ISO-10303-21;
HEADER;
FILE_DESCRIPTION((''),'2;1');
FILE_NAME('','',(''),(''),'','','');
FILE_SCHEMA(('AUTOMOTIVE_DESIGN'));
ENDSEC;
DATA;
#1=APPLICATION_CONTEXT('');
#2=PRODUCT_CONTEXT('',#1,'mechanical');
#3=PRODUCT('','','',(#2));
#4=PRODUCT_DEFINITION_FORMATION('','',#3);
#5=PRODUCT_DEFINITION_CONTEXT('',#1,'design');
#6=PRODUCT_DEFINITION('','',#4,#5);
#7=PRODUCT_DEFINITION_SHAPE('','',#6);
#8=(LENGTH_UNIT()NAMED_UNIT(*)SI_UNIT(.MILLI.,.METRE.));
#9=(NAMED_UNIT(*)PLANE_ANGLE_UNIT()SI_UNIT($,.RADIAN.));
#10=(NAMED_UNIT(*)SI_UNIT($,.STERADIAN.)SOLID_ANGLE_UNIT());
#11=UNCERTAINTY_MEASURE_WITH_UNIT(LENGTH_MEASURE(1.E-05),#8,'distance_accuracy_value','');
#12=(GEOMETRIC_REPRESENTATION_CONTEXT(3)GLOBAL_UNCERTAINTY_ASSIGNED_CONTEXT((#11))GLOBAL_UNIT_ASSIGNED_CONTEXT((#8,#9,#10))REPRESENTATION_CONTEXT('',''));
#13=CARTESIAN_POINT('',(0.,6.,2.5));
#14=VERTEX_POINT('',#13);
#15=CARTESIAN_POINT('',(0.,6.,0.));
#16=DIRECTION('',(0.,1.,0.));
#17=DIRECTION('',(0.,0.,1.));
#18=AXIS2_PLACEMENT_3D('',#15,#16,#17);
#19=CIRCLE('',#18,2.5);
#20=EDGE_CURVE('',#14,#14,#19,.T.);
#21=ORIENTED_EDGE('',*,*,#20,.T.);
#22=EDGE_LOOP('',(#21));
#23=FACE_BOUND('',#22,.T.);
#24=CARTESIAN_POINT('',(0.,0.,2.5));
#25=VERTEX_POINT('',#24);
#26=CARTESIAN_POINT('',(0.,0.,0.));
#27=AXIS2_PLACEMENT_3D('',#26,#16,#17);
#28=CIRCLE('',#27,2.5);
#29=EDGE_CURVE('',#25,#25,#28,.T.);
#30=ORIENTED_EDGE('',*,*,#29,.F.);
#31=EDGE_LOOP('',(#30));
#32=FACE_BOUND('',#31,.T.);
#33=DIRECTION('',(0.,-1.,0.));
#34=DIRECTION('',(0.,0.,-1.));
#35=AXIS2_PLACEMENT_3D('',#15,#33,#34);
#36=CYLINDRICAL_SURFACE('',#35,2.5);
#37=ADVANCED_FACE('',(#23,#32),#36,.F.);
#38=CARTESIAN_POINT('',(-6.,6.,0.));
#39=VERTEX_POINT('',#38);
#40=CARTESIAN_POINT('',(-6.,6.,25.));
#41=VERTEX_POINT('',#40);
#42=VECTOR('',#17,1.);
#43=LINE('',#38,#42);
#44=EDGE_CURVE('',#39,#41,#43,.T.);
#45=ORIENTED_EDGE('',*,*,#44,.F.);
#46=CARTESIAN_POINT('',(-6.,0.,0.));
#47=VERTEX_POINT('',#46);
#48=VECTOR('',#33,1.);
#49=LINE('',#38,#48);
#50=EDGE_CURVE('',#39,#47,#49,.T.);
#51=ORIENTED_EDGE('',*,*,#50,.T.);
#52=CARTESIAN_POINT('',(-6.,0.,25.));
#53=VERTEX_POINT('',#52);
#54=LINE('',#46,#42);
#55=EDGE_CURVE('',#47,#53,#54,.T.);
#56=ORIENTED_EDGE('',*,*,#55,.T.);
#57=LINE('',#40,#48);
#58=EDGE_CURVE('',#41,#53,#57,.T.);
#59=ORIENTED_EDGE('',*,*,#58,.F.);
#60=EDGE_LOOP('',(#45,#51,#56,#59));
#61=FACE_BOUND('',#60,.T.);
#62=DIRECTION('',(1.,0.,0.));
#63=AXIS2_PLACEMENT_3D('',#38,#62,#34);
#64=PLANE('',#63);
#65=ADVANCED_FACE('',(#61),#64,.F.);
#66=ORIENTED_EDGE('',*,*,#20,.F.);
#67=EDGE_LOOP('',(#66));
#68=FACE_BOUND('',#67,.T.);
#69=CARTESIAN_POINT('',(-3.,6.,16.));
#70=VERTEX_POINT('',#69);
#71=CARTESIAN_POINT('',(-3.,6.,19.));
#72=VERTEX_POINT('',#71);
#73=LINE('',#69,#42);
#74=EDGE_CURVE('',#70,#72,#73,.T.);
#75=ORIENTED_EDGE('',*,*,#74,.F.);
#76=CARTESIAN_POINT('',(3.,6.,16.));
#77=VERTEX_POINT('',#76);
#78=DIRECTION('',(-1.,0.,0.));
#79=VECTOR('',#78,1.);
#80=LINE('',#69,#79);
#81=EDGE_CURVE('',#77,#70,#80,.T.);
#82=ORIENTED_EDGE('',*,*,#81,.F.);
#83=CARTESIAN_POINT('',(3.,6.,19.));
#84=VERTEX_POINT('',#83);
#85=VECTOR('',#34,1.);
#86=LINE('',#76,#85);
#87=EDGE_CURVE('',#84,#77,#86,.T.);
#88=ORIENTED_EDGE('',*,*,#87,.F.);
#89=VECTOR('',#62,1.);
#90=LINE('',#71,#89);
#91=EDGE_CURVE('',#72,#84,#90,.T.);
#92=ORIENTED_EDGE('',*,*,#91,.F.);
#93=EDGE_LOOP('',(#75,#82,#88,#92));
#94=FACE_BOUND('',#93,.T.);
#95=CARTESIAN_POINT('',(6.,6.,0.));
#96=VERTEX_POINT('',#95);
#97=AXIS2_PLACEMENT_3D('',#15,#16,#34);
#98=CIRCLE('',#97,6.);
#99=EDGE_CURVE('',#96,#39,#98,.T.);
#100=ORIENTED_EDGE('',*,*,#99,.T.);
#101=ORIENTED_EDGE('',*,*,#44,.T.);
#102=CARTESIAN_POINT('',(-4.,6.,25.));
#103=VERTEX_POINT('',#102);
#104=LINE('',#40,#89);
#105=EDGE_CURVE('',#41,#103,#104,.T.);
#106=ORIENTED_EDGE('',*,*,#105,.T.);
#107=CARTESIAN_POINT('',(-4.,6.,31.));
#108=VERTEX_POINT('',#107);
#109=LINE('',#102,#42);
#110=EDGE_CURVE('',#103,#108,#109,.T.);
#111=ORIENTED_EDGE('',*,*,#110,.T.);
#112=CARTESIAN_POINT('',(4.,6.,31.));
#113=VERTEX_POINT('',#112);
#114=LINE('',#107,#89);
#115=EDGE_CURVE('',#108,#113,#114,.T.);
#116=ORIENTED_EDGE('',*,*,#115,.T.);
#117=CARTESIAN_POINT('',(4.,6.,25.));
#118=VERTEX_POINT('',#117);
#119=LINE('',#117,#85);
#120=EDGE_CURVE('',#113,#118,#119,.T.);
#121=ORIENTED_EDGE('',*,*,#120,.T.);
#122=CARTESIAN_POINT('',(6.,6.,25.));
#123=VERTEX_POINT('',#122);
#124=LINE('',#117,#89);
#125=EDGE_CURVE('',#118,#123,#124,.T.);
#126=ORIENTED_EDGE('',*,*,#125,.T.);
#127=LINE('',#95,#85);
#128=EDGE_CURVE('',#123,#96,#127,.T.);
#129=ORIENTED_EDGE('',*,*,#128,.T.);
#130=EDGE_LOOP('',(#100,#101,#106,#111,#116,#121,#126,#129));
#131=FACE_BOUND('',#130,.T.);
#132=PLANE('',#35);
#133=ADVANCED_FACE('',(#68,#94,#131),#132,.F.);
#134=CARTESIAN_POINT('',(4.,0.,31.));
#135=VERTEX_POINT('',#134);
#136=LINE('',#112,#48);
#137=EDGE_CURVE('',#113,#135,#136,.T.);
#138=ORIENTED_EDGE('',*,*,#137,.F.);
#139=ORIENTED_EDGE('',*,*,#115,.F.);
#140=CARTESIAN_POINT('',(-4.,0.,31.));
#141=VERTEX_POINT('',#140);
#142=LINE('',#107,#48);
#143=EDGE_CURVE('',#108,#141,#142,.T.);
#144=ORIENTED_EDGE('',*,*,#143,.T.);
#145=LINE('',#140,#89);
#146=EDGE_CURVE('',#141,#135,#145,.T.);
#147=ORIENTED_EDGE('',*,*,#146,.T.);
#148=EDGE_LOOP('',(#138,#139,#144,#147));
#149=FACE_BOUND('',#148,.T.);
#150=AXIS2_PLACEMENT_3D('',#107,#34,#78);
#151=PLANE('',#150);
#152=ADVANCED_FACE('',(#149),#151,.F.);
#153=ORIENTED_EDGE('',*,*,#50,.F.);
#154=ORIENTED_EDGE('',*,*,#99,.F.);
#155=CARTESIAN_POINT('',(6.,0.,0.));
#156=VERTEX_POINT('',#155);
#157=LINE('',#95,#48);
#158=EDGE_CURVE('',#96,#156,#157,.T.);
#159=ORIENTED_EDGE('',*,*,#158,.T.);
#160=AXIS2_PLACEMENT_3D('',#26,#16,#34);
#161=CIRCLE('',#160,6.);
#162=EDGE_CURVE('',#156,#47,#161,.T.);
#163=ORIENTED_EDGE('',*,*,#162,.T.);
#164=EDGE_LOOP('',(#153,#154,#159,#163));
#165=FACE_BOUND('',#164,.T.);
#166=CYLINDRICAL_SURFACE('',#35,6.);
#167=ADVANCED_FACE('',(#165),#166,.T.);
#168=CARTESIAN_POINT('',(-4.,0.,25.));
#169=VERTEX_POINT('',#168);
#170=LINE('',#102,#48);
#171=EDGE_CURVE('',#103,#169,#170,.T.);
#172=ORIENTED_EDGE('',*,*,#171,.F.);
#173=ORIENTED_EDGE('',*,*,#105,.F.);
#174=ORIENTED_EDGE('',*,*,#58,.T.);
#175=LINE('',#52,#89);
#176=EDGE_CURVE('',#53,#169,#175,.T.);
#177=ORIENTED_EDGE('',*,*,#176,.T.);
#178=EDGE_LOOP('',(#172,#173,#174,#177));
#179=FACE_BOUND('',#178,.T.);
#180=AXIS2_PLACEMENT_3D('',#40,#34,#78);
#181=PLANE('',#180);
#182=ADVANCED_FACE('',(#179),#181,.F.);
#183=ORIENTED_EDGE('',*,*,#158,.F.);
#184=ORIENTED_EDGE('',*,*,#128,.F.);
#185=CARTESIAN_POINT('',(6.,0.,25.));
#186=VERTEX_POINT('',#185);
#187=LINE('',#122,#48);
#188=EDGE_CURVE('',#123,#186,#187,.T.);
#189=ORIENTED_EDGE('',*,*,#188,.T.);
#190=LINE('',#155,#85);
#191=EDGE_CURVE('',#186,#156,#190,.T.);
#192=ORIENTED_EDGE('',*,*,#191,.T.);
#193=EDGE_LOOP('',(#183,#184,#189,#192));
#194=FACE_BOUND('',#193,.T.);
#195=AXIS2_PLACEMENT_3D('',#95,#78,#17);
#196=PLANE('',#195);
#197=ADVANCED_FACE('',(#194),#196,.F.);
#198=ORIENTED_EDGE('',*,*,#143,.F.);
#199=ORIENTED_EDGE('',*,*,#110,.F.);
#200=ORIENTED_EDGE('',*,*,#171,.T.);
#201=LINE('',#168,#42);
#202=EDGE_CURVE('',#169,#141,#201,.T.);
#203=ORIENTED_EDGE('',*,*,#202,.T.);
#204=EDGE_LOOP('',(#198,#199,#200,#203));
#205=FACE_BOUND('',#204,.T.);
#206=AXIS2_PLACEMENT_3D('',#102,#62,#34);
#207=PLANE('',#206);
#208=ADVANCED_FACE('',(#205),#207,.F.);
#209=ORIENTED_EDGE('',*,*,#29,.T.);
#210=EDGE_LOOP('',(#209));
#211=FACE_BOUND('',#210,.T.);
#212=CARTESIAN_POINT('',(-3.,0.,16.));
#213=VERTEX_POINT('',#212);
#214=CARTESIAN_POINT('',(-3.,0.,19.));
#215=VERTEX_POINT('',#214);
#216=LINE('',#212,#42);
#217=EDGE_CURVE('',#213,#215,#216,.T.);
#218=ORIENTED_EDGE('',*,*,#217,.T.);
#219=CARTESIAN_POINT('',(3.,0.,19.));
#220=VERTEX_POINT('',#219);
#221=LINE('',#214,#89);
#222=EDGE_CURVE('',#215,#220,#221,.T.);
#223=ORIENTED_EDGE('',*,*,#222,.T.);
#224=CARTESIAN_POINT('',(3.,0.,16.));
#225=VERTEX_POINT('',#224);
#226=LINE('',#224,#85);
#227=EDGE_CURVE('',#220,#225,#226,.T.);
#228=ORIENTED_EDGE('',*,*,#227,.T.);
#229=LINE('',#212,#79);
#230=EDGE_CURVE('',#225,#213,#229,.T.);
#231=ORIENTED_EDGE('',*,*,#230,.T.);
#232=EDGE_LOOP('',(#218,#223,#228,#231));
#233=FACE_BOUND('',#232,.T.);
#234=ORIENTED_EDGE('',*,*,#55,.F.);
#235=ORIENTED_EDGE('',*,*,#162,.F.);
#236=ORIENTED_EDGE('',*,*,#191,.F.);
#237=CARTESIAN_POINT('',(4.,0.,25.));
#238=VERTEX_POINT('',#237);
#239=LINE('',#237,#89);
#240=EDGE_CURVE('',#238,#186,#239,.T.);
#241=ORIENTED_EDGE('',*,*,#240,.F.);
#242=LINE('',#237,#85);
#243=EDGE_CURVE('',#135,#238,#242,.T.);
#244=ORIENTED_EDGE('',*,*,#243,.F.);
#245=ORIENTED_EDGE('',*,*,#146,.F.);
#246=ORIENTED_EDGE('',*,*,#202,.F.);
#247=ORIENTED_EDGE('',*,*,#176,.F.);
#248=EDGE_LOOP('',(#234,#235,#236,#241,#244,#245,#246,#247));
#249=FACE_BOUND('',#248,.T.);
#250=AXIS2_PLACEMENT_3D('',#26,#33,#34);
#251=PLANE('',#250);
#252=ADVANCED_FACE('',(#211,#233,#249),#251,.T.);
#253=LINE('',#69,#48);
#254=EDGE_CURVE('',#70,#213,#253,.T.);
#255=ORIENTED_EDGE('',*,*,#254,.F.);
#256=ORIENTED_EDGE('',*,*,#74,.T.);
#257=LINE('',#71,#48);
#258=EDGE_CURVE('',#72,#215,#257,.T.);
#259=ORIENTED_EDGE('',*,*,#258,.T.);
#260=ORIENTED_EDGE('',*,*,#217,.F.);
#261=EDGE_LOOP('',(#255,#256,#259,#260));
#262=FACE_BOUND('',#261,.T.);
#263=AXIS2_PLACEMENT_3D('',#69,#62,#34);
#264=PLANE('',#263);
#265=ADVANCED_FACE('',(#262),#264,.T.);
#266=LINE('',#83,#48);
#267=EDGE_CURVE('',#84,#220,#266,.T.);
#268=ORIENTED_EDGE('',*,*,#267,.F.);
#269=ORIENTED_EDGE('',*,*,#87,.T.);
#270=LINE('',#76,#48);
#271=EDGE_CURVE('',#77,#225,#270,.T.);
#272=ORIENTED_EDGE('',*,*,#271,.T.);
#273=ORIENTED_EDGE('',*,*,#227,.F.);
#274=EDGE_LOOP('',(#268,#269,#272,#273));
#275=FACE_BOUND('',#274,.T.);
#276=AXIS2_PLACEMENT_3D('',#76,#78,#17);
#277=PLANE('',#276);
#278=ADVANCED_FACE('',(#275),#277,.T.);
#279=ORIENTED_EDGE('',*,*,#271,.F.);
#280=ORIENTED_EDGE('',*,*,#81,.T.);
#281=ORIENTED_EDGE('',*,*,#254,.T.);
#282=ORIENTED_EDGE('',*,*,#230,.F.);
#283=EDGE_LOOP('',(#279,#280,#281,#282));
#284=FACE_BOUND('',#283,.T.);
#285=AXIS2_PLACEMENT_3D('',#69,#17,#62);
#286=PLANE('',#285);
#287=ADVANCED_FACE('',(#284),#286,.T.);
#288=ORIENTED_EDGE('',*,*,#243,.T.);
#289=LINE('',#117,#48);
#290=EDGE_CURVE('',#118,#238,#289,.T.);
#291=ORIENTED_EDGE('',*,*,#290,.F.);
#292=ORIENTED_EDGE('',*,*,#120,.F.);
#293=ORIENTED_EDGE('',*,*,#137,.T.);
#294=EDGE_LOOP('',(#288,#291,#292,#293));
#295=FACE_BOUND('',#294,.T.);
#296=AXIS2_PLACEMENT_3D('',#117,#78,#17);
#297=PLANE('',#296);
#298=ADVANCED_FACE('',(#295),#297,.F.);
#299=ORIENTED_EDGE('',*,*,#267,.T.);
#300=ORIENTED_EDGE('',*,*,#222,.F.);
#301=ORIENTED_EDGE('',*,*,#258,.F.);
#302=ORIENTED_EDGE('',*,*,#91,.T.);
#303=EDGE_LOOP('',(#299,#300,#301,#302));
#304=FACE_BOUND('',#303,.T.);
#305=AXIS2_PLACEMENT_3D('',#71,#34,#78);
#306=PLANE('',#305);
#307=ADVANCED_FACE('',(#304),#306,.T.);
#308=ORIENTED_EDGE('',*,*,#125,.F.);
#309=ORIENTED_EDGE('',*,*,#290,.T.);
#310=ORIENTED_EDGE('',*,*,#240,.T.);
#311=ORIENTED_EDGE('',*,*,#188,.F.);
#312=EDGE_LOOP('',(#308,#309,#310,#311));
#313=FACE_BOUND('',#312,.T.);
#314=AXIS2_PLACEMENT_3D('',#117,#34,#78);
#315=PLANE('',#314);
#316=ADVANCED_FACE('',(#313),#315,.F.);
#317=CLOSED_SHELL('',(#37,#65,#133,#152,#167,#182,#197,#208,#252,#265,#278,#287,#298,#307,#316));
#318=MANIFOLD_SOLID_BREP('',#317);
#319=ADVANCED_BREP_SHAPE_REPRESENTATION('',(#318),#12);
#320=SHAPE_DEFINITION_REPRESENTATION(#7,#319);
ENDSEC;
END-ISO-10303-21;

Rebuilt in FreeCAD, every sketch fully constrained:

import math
import FreeCAD as App
import Part
import Sketcher

V = App.Vector

doc = App.newDocument("Part")
body = doc.addObject("PartDesign::Body", "Body")

sketch1 = body.newObject("Sketcher::SketchObject", "Sketch")
sketch1.AttachmentSupport = (doc.getObject("XZ_Plane"), [""])
sketch1.MapMode = "FlatFace"
sketch1.addGeometry(Part.LineSegment(V(-6, 0, 0), V(-6, 25, 0)), False)
sketch1.addGeometry(Part.LineSegment(V(-6, 25, 0), V(-4, 25, 0)), False)
sketch1.addGeometry(Part.LineSegment(V(-4, 25, 0), V(-4, 31, 0)), False)
sketch1.addGeometry(Part.LineSegment(V(-4, 31, 0), V(4, 31, 0)), False)
sketch1.addGeometry(Part.LineSegment(V(4, 31, 0), V(4, 25, 0)), False)
sketch1.addGeometry(Part.LineSegment(V(4, 25, 0), V(6, 25, 0)), False)
sketch1.addGeometry(Part.LineSegment(V(6, 25, 0), V(6, 0, 0)), False)
sketch1.addGeometry(Part.ArcOfCircle(Part.Circle(V(0, 0, 0), V(0, 0, 1), 6), math.radians(180), math.radians(360)), False)
sketch1.addGeometry(Part.LineSegment(V(3, 19, 0), V(-3, 19, 0)), False)
sketch1.addGeometry(Part.LineSegment(V(-3, 19, 0), V(-3, 16, 0)), False)
sketch1.addGeometry(Part.LineSegment(V(-3, 16, 0), V(3, 16, 0)), False)
sketch1.addGeometry(Part.LineSegment(V(3, 16, 0), V(3, 19, 0)), False)
sketch1.addGeometry(Part.Circle(V(0, 0, 0), V(0, 0, 1), 2.5), False)
sketch1.addConstraint(Sketcher.Constraint("Coincident", 0, 2, 1, 1))
sketch1.addConstraint(Sketcher.Constraint("Coincident", 1, 2, 2, 1))
sketch1.addConstraint(Sketcher.Constraint("Coincident", 2, 2, 3, 1))
sketch1.addConstraint(Sketcher.Constraint("Coincident", 3, 2, 4, 1))
sketch1.addConstraint(Sketcher.Constraint("Coincident", 4, 2, 5, 1))
sketch1.addConstraint(Sketcher.Constraint("Coincident", 5, 2, 6, 1))
sketch1.addConstraint(Sketcher.Constraint("Tangent", 6, 2, 7, 2))
sketch1.addConstraint(Sketcher.Constraint("Tangent", 7, 1, 0, 1))
sketch1.addConstraint(Sketcher.Constraint("Coincident", 8, 2, 9, 1))
sketch1.addConstraint(Sketcher.Constraint("Coincident", 9, 2, 10, 1))
sketch1.addConstraint(Sketcher.Constraint("Coincident", 10, 2, 11, 1))
sketch1.addConstraint(Sketcher.Constraint("Coincident", 11, 2, 8, 1))
sketch1.addConstraint(Sketcher.Constraint("Vertical", 0))
sketch1.addConstraint(Sketcher.Constraint("Horizontal", 1))
sketch1.addConstraint(Sketcher.Constraint("Vertical", 2))
sketch1.addConstraint(Sketcher.Constraint("Horizontal", 3))
sketch1.addConstraint(Sketcher.Constraint("Vertical", 4))
sketch1.addConstraint(Sketcher.Constraint("Horizontal", 5))
sketch1.addConstraint(Sketcher.Constraint("Vertical", 6))
sketch1.addConstraint(Sketcher.Constraint("Horizontal", 8))
sketch1.addConstraint(Sketcher.Constraint("Vertical", 9))
sketch1.addConstraint(Sketcher.Constraint("Horizontal", 10))
sketch1.addConstraint(Sketcher.Constraint("Vertical", 11))
sketch1.addConstraint(Sketcher.Constraint("Coincident", 7, 3, -1, 1))
sketch1.addConstraint(Sketcher.Constraint("Coincident", 12, 3, -1, 1))
sketch1.addConstraint(Sketcher.Constraint("Symmetric", 1, 2, 4, 2, -2))
sketch1.addConstraint(Sketcher.Constraint("Equal", 10, 2))
sketch1.addConstraint(Sketcher.Constraint("Diameter", 12, 5.0))
sketch1.addConstraint(Sketcher.Constraint("Radius", 7, 6.0))
sketch1.addConstraint(Sketcher.Constraint("DistanceX", 1, 1, 1, 2, 2.0))
sketch1.addConstraint(Sketcher.Constraint("DistanceX", 8, 2, 8, 1, 6.0))
sketch1.addConstraint(Sketcher.Constraint("DistanceY", 0, 1, 0, 2, 25.0))
sketch1.addConstraint(Sketcher.Constraint("DistanceY", 9, 2, 9, 1, 3.0))
sketch1.addConstraint(Sketcher.Constraint("DistanceX", 8, 2, -1, 1, 3.0))
sketch1.addConstraint(Sketcher.Constraint("DistanceY", -1, 1, 8, 2, 19.0))
pad1 = body.newObject("PartDesign::Pad", "Pad")
pad1.Profile = sketch1
pad1.Length = 6
pad1.Reversed = True

doc.recompute()
